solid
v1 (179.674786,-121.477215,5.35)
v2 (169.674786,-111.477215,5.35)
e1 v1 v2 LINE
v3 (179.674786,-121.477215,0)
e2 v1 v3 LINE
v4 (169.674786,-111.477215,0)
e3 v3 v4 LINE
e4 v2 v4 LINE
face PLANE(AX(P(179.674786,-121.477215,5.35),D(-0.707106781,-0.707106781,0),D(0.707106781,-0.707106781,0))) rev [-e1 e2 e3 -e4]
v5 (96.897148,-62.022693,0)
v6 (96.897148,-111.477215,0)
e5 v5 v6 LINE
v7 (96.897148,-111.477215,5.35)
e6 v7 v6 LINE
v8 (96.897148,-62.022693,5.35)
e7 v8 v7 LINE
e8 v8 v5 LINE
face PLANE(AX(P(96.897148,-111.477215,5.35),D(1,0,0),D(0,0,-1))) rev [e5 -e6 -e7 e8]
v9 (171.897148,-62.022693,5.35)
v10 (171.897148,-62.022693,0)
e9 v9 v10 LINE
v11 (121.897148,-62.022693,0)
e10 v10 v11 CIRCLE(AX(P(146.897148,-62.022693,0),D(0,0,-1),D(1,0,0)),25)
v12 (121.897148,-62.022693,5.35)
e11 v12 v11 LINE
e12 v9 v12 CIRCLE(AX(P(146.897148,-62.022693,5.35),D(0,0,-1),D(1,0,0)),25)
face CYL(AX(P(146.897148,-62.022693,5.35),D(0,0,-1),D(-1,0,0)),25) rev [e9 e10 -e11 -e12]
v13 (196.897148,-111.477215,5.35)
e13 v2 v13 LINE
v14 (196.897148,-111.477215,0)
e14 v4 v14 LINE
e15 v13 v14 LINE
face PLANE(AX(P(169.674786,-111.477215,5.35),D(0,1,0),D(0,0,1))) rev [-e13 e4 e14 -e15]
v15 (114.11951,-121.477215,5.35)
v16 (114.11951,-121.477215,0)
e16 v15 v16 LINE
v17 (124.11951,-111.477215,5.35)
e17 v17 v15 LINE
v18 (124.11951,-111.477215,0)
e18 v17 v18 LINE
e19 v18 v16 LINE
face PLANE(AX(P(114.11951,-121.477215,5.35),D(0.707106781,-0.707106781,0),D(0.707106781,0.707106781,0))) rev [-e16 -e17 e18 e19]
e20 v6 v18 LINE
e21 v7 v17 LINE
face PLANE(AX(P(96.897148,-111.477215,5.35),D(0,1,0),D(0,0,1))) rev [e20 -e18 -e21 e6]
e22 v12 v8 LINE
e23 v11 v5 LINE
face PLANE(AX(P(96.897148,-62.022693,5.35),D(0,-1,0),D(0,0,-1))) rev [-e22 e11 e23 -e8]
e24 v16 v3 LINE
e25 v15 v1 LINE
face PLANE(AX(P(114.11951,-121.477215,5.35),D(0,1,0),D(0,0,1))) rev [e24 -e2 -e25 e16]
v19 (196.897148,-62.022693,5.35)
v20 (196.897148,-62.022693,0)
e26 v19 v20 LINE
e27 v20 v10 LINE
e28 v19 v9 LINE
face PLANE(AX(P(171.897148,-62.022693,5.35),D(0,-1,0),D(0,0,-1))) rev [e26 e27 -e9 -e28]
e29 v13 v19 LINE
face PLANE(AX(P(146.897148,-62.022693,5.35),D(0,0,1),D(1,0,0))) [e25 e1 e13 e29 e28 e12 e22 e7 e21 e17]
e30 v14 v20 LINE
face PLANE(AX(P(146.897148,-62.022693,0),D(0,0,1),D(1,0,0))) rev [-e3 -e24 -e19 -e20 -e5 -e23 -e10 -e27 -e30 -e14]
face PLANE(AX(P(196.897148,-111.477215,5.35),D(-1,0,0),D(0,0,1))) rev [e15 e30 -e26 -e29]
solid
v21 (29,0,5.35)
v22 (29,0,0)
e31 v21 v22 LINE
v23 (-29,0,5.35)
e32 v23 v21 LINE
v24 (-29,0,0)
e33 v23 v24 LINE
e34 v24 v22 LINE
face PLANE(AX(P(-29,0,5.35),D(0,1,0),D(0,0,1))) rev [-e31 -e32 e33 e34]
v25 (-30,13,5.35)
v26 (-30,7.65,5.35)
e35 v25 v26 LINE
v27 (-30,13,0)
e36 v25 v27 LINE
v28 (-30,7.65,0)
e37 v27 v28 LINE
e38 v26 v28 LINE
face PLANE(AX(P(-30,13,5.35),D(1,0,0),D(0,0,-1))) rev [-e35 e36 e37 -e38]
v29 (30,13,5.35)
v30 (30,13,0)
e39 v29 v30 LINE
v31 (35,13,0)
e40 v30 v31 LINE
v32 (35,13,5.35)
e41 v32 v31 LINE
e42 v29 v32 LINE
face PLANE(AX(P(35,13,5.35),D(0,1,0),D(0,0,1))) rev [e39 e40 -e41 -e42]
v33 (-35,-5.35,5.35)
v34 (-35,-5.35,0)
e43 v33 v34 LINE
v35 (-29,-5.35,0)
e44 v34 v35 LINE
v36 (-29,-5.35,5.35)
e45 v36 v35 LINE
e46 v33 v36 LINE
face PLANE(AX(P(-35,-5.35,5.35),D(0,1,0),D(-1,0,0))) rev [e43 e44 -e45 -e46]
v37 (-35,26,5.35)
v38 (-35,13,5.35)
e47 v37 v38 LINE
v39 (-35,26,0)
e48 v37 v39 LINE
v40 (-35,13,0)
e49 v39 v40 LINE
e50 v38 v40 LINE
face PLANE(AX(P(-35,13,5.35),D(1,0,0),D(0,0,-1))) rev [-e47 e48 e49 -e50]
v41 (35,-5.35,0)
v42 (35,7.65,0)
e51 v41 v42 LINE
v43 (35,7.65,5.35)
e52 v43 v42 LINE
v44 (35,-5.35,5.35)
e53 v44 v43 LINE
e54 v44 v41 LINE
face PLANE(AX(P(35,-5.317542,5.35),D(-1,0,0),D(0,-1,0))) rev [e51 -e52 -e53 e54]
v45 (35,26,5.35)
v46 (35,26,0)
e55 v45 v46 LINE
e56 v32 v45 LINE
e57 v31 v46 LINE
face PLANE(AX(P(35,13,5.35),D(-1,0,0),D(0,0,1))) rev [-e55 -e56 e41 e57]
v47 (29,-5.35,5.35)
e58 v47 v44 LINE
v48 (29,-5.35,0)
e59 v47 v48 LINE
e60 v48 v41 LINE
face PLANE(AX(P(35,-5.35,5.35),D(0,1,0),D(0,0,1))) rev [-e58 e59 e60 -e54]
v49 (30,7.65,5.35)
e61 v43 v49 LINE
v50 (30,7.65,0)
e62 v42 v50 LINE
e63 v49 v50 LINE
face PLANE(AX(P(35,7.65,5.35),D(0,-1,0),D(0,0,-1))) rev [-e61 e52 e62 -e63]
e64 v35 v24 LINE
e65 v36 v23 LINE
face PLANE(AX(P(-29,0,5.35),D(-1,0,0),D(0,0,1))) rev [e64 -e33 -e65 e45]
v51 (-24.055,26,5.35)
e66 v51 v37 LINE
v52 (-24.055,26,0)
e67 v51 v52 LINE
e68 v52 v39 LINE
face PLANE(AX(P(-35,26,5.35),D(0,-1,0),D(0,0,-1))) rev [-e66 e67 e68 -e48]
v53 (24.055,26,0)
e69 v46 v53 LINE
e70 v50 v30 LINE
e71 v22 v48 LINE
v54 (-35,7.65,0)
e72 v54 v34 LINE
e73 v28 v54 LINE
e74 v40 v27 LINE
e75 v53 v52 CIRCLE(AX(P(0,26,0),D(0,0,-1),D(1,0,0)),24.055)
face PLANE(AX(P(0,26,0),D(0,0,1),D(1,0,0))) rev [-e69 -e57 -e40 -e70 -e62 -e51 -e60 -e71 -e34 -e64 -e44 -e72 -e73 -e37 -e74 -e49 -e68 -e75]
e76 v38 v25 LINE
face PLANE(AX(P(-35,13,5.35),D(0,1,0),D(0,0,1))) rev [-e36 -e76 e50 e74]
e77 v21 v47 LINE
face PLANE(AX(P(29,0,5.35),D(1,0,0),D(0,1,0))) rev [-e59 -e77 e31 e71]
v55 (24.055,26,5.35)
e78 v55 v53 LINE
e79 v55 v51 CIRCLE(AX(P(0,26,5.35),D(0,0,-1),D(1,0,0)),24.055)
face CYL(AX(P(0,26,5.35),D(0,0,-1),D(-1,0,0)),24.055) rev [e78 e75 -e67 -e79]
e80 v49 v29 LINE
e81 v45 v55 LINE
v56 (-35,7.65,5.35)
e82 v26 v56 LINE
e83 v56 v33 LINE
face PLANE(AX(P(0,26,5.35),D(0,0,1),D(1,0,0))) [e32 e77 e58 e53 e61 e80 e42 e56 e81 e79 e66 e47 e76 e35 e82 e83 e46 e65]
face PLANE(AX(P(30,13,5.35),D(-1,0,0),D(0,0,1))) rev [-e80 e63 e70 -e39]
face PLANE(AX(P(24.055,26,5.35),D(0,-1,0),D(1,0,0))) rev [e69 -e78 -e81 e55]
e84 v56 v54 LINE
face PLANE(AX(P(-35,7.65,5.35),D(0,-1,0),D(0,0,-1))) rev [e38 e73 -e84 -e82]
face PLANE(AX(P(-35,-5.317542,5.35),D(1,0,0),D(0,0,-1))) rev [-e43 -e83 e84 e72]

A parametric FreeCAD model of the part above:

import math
import FreeCAD as App
import Part
import Sketcher
from FreeCAD import Vector
Q = App.Units.Quantity

doc = App.newDocument("Part")
body = doc.addObject("PartDesign::Body", "Body")

sketch1 = doc.addObject("Sketcher::SketchObject", "Sketch")
body.addObject(sketch1)
sketch1.AttachmentSupport = (doc.XY_Plane, [""])
sketch1.MapMode = "FlatFace"
sketch1.addGeometry([
    Part.LineSegment(Vector(-35, 26, 0), Vector(-35, 13, 0)),
    Part.LineSegment(Vector(-35, 13, 0), Vector(-30, 13, 0)),
    Part.LineSegment(Vector(-30, 13, 0), Vector(-30, 7.65, 0)),
    Part.LineSegment(Vector(-30, 7.65, 0), Vector(-35, 7.65, 0)),
    Part.LineSegment(Vector(-35, 7.65, 0), Vector(-35, -5.35, 0)),
    Part.LineSegment(Vector(-35, -5.35, 0), Vector(-29, -5.35, 0)),
    Part.LineSegment(Vector(-29, -5.35, 0), Vector(-29, 0, 0)),
    Part.LineSegment(Vector(-29, 0, 0), Vector(29, 0, 0)),
    Part.LineSegment(Vector(29, 0, 0), Vector(29, -5.35, 0)),
    Part.LineSegment(Vector(29, -5.35, 0), Vector(35, -5.35, 0)),
    Part.LineSegment(Vector(35, -5.35, 0), Vector(35, 7.65, 0)),
    Part.LineSegment(Vector(35, 7.65, 0), Vector(30, 7.65, 0)),
    Part.LineSegment(Vector(30, 7.65, 0), Vector(30, 13, 0)),
    Part.LineSegment(Vector(30, 13, 0), Vector(35, 13, 0)),
    Part.LineSegment(Vector(35, 13, 0), Vector(35, 26, 0)),
    Part.LineSegment(Vector(35, 26, 0), Vector(24.055, 26, 0)),
    Part.ArcOfCircle(Part.Circle(Vector(0, 26, 0), Vector(0, 0, 1), 24.055), math.radians(180), math.radians(360)),
    Part.LineSegment(Vector(-24.055, 26, 0), Vector(-35, 26, 0)),
], False)
sketch1.addConstraint([
    Sketcher.Constraint("Coincident", 0, 2, 1, 1),
    Sketcher.Constraint("Coincident", 1, 2, 2, 1),
    Sketcher.Constraint("Coincident", 2, 2, 3, 1),
    Sketcher.Constraint("Coincident", 3, 2, 4, 1),
    Sketcher.Constraint("Coincident", 4, 2, 5, 1),
    Sketcher.Constraint("Coincident", 5, 2, 6, 1),
    Sketcher.Constraint("Coincident", 6, 2, 7, 1),
    Sketcher.Constraint("Coincident", 7, 2, 8, 1),
    Sketcher.Constraint("Coincident", 8, 2, 9, 1),
    Sketcher.Constraint("Coincident", 9, 2, 10, 1),
    Sketcher.Constraint("Coincident", 10, 2, 11, 1),
    Sketcher.Constraint("Coincident", 11, 2, 12, 1),
    Sketcher.Constraint("Coincident", 12, 2, 13, 1),
    Sketcher.Constraint("Coincident", 13, 2, 14, 1),
    Sketcher.Constraint("Coincident", 14, 2, 15, 1),
    Sketcher.Constraint("Coincident", 15, 2, 16, 2),
    Sketcher.Constraint("Coincident", 16, 1, 17, 1),
    Sketcher.Constraint("Coincident", 17, 2, 0, 1),
    Sketcher.Constraint("Vertical", 0),
    Sketcher.Constraint("Horizontal", 1),
    Sketcher.Constraint("Vertical", 2),
    Sketcher.Constraint("Horizontal", 3),
    Sketcher.Constraint("Vertical", 4),
    Sketcher.Constraint("Horizontal", 5),
    Sketcher.Constraint("Vertical", 6),
    Sketcher.Constraint("Horizontal", 7),
    Sketcher.Constraint("Vertical", 8),
    Sketcher.Constraint("Horizontal", 9),
    Sketcher.Constraint("Vertical", 10),
    Sketcher.Constraint("Horizontal", 11),
    Sketcher.Constraint("Vertical", 12),
    Sketcher.Constraint("Horizontal", 13),
    Sketcher.Constraint("Vertical", 14),
    Sketcher.Constraint("Horizontal", 15),
    Sketcher.Constraint("Horizontal", 17),
    Sketcher.Constraint("Symmetric", 6, 2, 7, 2, -1, 1),
    Sketcher.Constraint("Symmetric", 4, 2, 9, 2, -2),
    Sketcher.Constraint("Symmetric", 2, 2, 11, 2, -2),
    Sketcher.Constraint("Symmetric", 0, 2, 13, 2, -2),
    Sketcher.Constraint("Symmetric", 15, 2, 16, 1, -2),
    Sketcher.Constraint("Horizontal", 16, 3, 14, 2),
    Sketcher.Constraint("Vertical", 0, 2, 3, 2),
    Sketcher.Constraint("Equal", 0, 4),
    Sketcher.Constraint("Equal", 2, 6),
    Sketcher.Constraint("DistanceX", 1, 1, 1, 2, Q("5 mm")),
    Sketcher.Constraint("DistanceX", 5, 1, 5, 2, Q("6 mm")),
    Sketcher.Constraint("DistanceX", 7, 1, 7, 2, Q("58 mm")),
    Sketcher.Constraint("DistanceY", 0, 2, 0, 1, Q("13 mm")),
    Sketcher.Constraint("Radius", 16, Q("24.055 mm")),
    Sketcher.Constraint("DistanceY", 2, 2, 2, 1, Q("5.35 mm")),
])
pad1 = doc.addObject("PartDesign::Pad", "Pad")
body.addObject(pad1)
pad1.Profile = sketch1
pad1.Length = 5.35
body2 = doc.addObject("PartDesign::Body", "Body001")

sketch2 = doc.addObject("Sketcher::SketchObject", "Sketch001")
body2.addObject(sketch2)
sketch2.AttachmentSupport = (doc.getObject("XY_Plane001"), [""])
sketch2.MapMode = "FlatFace"
sketch2.addGeometry([
    Part.LineSegment(Vector(96.897148, -111.477215, 0), Vector(124.11951, -111.477215, 0)),
    Part.LineSegment(Vector(124.11951, -111.477215, 0), Vector(114.11951, -121.477215, 0)),
    Part.LineSegment(Vector(114.11951, -121.477215, 0), Vector(179.674786, -121.477215, 0)),
    Part.LineSegment(Vector(179.674786, -121.477215, 0), Vector(169.674786, -111.477215, 0)),
    Part.LineSegment(Vector(169.674786, -111.477215, 0), Vector(196.897148, -111.477215, 0)),
    Part.LineSegment(Vector(196.897148, -111.477215, 0), Vector(196.897148, -62.022693, 0)),
    Part.LineSegment(Vector(196.897148, -62.022693, 0), Vector(171.897148, -62.022693, 0)),
    Part.ArcOfCircle(Part.Circle(Vector(146.897148, -62.022693, 0), Vector(0, 0, 1), 25), math.radians(180), math.radians(360)),
    Part.LineSegment(Vector(121.897148, -62.022693, 0), Vector(96.897148, -62.022693, 0)),
    Part.LineSegment(Vector(96.897148, -62.022693, 0), Vector(96.897148, -111.477215, 0)),
], False)
sketch2.addConstraint([
    Sketcher.Constraint("Coincident", 0, 2, 1, 1),
    Sketcher.Constraint("Coincident", 1, 2, 2, 1),
    Sketcher.Constraint("Coincident", 2, 2, 3, 1),
    Sketcher.Constraint("Coincident", 3, 2, 4, 1),
    Sketcher.Constraint("Coincident", 4, 2, 5, 1),
    Sketcher.Constraint("Coincident", 5, 2, 6, 1),
    Sketcher.Constraint("Coincident", 6, 2, 7, 2),
    Sketcher.Constraint("Coincident", 7, 1, 8, 1),
    Sketcher.Constraint("Coincident", 8, 2, 9, 1),
    Sketcher.Constraint("Coincident", 9, 2, 0, 1),
    Sketcher.Constraint("Horizontal", 0),
    Sketcher.Constraint("Horizontal", 2),
    Sketcher.Constraint("Horizontal", 4),
    Sketcher.Constraint("Vertical", 5),
    Sketcher.Constraint("Horizontal", 6),
    Sketcher.Constraint("Horizontal", 8),
    Sketcher.Constraint("Vertical", 9),
    Sketcher.Constraint("Perpendicular", 1, 3),
    Sketcher.Constraint("Horizontal", 0, 2, 3, 2),
    Sketcher.Constraint("Horizontal", 7, 3, 5, 2),
    Sketcher.Constraint("Horizontal", 6, 2, 7, 1),
    Sketcher.Constraint("Equal", 0, 4),
    Sketcher.Constraint("Equal", 6, 8),
    Sketcher.Constraint("Equal", 1, 3),
    Sketcher.Constraint("Radius", 7, Q("25 mm")),
    Sketcher.Constraint("DistanceX", 6, 2, 6, 1, Q("25 mm")),
    Sketcher.Constraint("DistanceX", 1, 2, 0, 2, Q("10 mm")),
    Sketcher.Constraint("DistanceX", 0, 1, 0, 2, Q("27.222362 mm")),
    Sketcher.Constraint("DistanceY", 5, 1, 5, 2, Q("49.454523 mm")),
    Sketcher.Constraint("DistanceX", -1, 1, 0, 2, Q("124.11951 mm")),
    Sketcher.Constraint("DistanceY", 7, 3, -1, 1, Q("62.022693 mm")),
])
pad2 = doc.addObject("PartDesign::Pad", "Pad001")
body2.addObject(pad2)
pad2.Profile = sketch2
pad2.Length = 5.35

doc.recompute()
